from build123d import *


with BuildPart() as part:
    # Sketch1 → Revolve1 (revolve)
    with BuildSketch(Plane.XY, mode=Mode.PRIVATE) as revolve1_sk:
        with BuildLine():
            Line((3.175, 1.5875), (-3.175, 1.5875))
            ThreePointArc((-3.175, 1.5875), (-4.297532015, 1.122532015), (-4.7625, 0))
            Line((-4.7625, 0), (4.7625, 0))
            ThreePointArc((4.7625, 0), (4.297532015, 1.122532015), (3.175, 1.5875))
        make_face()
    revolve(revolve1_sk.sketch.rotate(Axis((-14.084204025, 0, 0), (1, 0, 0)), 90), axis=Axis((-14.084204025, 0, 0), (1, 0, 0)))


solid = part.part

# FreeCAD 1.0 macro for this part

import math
import FreeCAD as App
import Part
import Sketcher
from FreeCAD import Vector
Q = App.Units.Quantity

doc = App.newDocument("Part")
body = doc.addObject("PartDesign::Body", "Body")

sketch1 = body.newObject("Sketcher::SketchObject", "Sketch")
sketch1.AttachmentSupport = (doc.getObject("XY_Plane"), [""])
sketch1.MapMode = "FlatFace"
sketch1.addGeometry([
    Part.LineSegment(Vector(3.175, 1.5875, 0), Vector(-3.175, 1.5875, 0)),
    Part.ArcOfCircle(Part.Circle(Vector(-3.175, 0, 0), Vector(0, 0, 1), 1.5875), math.radians(90), math.radians(180)),
    Part.LineSegment(Vector(-4.7625, 0, 0), Vector(4.7625, 0, 0)),
    Part.ArcOfCircle(Part.Circle(Vector(3.175, 0, 0), Vector(0, 0, 1), 1.5875), math.radians(0), math.radians(90)),
], False)
sketch1.addConstraint([
    Sketcher.Constraint("Tangent", 0, 2, 1, 1),
    Sketcher.Constraint("Coincident", 1, 2, 2, 1),
    Sketcher.Constraint("Coincident", 2, 2, 3, 1),
    Sketcher.Constraint("Tangent", 3, 2, 0, 1),
    Sketcher.Constraint("Horizontal", 0),
    Sketcher.Constraint("Horizontal", 2),
    Sketcher.Constraint("Equal", 1, 3),
    Sketcher.Constraint("Symmetric", 1, 3, 3, 3, -1, 1),
    Sketcher.Constraint("PointOnObject", 1, 2, -1),
    Sketcher.Constraint("Radius", 1, Q("0.0625 in")),
    Sketcher.Constraint("DistanceX", 0, 2, 0, 1, Q("0.25 in")),
])
revolution = body.newObject("PartDesign::Revolution", "Revolution")
revolution.Profile = sketch1
revolution.ReferenceAxis = (sketch1, ["H_Axis"])
revolution.Angle = 360

doc.recompute()
